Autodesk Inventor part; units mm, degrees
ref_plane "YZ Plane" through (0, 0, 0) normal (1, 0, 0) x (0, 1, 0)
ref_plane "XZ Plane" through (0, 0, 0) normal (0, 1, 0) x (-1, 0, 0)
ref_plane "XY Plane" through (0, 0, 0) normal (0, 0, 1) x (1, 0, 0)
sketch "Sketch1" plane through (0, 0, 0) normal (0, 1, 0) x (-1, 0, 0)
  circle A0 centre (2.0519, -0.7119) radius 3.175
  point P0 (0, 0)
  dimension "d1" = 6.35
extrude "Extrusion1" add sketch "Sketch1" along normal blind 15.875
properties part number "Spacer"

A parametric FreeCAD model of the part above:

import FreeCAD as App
import Part
import Sketcher

V = App.Vector
Q = App.Units.Quantity

doc = App.newDocument("Part")
body = doc.addObject("PartDesign::Body", "Body")

# Sketch on XZ plane
sketch1 = body.newObject("Sketcher::SketchObject", "Sketch")
sketch1.AttachmentSupport = (doc.getObject("XZ_Plane"), [""])
sketch1.MapMode = "FlatFace"
sketch1.addGeometry(Part.Circle(V(-2.1, -0.7, 0), V(0, 0, 1), 3.2), False)
sketch1.addConstraint([
    Sketcher.Constraint("Diameter", 0, Q("0.25 in")),
    Sketcher.Constraint("DistanceX", 0, 3, -1, 1, 2.052),
    Sketcher.Constraint("DistanceY", 0, 3, -1, 1, 0.712),
])
pad1 = body.newObject("PartDesign::Pad", "Pad")
pad1.Profile = sketch1
pad1.Length = Q("0.625 in")
pad1.Reversed = True

doc.recompute()
